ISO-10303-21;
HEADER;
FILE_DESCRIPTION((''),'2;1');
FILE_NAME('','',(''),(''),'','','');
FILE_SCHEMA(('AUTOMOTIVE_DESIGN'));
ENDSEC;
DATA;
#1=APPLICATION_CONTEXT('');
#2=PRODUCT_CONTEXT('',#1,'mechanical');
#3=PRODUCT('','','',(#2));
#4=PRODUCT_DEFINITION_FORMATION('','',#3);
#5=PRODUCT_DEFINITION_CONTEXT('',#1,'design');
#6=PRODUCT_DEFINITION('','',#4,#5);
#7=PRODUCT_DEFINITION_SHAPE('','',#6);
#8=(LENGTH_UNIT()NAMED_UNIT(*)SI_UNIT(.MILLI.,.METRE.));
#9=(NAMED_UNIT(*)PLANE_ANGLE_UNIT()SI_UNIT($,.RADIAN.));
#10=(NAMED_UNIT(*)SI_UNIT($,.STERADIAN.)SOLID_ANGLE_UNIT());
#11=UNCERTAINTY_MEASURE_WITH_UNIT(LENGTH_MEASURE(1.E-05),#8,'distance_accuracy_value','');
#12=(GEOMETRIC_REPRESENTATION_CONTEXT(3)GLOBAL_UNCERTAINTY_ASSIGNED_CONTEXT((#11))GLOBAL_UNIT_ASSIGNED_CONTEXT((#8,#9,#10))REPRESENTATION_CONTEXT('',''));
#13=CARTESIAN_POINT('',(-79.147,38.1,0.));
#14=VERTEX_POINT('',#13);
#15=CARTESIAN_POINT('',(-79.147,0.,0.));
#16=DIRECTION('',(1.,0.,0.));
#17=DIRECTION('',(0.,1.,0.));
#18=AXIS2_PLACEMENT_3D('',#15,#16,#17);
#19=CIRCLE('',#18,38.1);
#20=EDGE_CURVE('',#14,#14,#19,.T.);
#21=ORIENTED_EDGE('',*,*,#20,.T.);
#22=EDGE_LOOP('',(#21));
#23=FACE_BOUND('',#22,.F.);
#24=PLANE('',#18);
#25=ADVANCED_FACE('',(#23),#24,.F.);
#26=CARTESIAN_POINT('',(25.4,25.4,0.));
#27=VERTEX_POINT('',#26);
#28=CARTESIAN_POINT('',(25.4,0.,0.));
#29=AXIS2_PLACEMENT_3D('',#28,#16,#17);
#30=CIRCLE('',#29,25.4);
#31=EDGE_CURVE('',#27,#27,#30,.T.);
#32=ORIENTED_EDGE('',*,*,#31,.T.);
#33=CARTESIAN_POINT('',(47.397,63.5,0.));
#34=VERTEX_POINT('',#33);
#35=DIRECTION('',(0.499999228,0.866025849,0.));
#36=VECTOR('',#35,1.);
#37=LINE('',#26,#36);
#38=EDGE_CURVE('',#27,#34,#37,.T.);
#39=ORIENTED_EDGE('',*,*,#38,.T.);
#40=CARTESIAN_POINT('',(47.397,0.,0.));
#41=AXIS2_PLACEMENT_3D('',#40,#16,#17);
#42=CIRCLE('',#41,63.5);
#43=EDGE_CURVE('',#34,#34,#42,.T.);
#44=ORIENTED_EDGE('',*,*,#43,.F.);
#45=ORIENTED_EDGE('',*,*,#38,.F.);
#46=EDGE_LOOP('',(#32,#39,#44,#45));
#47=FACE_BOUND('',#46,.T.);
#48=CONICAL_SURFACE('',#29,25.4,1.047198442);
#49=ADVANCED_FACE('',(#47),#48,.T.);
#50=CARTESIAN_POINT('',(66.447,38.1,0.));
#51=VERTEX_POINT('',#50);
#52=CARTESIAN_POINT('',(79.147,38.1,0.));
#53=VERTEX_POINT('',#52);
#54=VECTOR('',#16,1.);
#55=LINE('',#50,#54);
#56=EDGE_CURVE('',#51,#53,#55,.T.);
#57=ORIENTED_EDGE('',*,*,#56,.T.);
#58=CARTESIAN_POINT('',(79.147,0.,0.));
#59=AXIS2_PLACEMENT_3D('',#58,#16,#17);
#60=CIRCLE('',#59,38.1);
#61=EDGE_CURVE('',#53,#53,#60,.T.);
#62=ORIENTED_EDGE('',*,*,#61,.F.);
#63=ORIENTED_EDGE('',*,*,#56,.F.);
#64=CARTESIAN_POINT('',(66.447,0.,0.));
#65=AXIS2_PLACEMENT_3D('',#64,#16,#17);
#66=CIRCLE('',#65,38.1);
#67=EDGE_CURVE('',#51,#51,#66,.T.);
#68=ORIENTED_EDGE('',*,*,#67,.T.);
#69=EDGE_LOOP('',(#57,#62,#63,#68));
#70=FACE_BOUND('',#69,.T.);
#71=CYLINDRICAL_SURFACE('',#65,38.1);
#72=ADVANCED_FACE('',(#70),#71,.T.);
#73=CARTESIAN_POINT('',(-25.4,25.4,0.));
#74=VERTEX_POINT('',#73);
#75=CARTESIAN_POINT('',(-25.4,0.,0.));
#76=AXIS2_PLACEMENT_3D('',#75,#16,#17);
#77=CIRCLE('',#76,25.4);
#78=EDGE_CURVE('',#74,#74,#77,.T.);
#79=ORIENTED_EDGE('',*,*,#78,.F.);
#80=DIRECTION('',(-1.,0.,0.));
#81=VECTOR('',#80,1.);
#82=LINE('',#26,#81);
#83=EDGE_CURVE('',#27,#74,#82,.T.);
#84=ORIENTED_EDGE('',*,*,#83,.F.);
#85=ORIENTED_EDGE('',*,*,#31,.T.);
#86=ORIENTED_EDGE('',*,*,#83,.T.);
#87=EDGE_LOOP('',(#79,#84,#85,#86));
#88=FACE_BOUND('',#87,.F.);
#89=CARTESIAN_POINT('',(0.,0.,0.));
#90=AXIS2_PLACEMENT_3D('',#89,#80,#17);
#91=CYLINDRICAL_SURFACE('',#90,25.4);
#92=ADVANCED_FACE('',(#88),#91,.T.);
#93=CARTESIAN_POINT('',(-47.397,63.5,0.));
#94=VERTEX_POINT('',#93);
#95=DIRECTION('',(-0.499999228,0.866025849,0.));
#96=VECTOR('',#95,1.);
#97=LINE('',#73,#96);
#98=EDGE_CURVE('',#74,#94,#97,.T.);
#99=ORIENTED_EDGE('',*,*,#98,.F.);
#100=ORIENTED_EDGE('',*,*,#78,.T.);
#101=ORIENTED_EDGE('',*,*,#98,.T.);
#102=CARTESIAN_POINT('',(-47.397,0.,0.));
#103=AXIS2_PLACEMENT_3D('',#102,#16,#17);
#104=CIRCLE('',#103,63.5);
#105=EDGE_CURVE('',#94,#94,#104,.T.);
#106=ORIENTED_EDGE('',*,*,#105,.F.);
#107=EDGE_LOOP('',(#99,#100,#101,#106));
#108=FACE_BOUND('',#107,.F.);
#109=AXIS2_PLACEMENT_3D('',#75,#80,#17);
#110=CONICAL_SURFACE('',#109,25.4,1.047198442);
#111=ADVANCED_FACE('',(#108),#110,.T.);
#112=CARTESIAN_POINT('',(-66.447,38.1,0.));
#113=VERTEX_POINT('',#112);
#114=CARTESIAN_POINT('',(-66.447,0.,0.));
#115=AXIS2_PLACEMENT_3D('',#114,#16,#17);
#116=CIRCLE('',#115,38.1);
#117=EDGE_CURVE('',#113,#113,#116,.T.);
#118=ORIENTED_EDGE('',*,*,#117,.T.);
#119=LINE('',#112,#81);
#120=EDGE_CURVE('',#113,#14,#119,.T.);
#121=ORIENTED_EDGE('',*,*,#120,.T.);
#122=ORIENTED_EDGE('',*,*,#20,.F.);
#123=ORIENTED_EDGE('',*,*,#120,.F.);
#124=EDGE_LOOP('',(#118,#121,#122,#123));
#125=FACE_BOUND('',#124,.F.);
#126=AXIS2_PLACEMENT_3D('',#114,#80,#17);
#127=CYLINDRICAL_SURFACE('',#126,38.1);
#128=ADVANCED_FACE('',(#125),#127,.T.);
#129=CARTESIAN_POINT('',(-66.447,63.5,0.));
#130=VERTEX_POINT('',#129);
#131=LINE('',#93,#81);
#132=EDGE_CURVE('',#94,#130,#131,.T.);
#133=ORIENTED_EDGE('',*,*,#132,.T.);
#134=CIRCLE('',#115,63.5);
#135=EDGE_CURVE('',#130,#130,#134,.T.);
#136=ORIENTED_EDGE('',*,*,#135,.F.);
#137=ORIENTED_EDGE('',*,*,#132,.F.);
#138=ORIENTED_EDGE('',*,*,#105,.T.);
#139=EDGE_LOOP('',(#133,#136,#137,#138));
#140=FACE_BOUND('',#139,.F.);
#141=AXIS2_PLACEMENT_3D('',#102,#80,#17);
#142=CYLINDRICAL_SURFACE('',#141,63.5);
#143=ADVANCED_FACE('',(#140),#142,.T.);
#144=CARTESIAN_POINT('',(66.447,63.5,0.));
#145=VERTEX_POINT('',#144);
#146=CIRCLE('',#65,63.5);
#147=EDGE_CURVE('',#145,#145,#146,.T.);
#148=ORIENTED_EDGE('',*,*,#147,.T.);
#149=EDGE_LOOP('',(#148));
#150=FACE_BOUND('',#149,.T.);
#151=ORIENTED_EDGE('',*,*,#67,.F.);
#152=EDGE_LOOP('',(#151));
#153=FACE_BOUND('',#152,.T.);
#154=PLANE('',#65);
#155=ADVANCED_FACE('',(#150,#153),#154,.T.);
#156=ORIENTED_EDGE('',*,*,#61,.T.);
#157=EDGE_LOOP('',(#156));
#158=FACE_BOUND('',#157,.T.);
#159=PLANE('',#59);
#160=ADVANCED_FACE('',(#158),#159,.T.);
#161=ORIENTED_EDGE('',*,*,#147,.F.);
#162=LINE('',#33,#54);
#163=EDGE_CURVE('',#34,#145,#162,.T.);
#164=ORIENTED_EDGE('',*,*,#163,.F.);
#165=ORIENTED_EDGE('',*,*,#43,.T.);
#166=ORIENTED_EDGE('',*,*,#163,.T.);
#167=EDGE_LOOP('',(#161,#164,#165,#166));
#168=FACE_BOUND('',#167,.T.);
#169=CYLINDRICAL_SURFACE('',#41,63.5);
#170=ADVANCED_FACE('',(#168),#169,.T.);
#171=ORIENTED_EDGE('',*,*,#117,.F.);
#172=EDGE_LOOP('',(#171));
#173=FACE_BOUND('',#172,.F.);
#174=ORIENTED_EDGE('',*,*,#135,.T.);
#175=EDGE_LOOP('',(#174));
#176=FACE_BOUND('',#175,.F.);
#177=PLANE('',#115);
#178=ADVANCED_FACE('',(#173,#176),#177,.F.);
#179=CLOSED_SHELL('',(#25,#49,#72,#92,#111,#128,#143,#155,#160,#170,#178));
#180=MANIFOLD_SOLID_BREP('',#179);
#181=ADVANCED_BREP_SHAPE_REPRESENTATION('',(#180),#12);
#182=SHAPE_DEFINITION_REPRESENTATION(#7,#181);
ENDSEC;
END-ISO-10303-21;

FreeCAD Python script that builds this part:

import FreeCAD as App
import Part
import Sketcher
Q = App.Units.Quantity


def add_polygon(sketch, points):
    """Adds a closed chain of lines whose ends are joined by coincident constraints."""
    first, n = sketch.GeometryCount, len(points)
    for a, b in zip(points, points[1:] + points[:1]):
        sketch.addGeometry(Part.LineSegment(App.Vector(*a, 0), App.Vector(*b, 0)), False)
    for i in range(n):
        sketch.addConstraint(Sketcher.Constraint("Coincident", first + i, 2, first + (i + 1) % n, 1))

doc = App.newDocument("Part")
body = doc.addObject("PartDesign::Body", "Body")

# Sketch on XY plane
sketch1 = body.newObject("Sketcher::SketchObject", "Sketch")
sketch1.AttachmentSupport = (doc.getObject("XY_Plane"), [""])
sketch1.MapMode = "FlatFace"
add_polygon(sketch1, [(-79.147, 0), (79.147, 0), (79.147, 38.1), (66.447, 38.1), (66.447, 63.5), (47.397, 63.5), (25.4, 25.4), (-25.4, 25.4), (-47.397, 63.5), (-66.447, 63.5), (-66.447, 38.1), (-79.147, 38.1)])  # lines 0-11
sketch1.addConstraint([
    Sketcher.Constraint("Horizontal", 0),
    Sketcher.Constraint("Vertical", 1),
    Sketcher.Constraint("Horizontal", 2),
    Sketcher.Constraint("Vertical", 3),
    Sketcher.Constraint("Horizontal", 4),
    Sketcher.Constraint("Horizontal", 6),
    Sketcher.Constraint("Horizontal", 8),
    Sketcher.Constraint("Vertical", 9),
    Sketcher.Constraint("Horizontal", 10),
    Sketcher.Constraint("Vertical", 11),
    Sketcher.Constraint("Symmetric", 0, 2, 11, 2, -1, 1),
    Sketcher.Constraint("Symmetric", 4, 2, 7, 2, -2),
    Sketcher.Constraint("Symmetric", 2, 2, 9, 2, -2),
    Sketcher.Constraint("Equal", 5, 7),
    Sketcher.Constraint("DistanceX", 6, 2, 6, 1, Q("2 in")),
    Sketcher.Constraint("DistanceX", 2, 2, 2, 1, Q("0.5 in")),
    Sketcher.Constraint("DistanceX", 4, 2, 4, 1, Q("0.75 in")),
    Sketcher.Constraint("DistanceY", 5, 2, 2, 2, Q("0.5 in")),
    Sketcher.Constraint("DistanceY", 3, 1, 3, 2, Q("1 in")),
    Sketcher.Constraint("DistanceY", 1, 1, 1, 2, Q("1.5 in")),
    Sketcher.Constraint("Angle", 5, Q("-120 deg")),
])
revolution = body.newObject("PartDesign::Revolution", "Revolution")
revolution.Profile = sketch1
revolution.ReferenceAxis = (sketch1, ["H_Axis"])
revolution.Angle = 360

doc.recompute()
